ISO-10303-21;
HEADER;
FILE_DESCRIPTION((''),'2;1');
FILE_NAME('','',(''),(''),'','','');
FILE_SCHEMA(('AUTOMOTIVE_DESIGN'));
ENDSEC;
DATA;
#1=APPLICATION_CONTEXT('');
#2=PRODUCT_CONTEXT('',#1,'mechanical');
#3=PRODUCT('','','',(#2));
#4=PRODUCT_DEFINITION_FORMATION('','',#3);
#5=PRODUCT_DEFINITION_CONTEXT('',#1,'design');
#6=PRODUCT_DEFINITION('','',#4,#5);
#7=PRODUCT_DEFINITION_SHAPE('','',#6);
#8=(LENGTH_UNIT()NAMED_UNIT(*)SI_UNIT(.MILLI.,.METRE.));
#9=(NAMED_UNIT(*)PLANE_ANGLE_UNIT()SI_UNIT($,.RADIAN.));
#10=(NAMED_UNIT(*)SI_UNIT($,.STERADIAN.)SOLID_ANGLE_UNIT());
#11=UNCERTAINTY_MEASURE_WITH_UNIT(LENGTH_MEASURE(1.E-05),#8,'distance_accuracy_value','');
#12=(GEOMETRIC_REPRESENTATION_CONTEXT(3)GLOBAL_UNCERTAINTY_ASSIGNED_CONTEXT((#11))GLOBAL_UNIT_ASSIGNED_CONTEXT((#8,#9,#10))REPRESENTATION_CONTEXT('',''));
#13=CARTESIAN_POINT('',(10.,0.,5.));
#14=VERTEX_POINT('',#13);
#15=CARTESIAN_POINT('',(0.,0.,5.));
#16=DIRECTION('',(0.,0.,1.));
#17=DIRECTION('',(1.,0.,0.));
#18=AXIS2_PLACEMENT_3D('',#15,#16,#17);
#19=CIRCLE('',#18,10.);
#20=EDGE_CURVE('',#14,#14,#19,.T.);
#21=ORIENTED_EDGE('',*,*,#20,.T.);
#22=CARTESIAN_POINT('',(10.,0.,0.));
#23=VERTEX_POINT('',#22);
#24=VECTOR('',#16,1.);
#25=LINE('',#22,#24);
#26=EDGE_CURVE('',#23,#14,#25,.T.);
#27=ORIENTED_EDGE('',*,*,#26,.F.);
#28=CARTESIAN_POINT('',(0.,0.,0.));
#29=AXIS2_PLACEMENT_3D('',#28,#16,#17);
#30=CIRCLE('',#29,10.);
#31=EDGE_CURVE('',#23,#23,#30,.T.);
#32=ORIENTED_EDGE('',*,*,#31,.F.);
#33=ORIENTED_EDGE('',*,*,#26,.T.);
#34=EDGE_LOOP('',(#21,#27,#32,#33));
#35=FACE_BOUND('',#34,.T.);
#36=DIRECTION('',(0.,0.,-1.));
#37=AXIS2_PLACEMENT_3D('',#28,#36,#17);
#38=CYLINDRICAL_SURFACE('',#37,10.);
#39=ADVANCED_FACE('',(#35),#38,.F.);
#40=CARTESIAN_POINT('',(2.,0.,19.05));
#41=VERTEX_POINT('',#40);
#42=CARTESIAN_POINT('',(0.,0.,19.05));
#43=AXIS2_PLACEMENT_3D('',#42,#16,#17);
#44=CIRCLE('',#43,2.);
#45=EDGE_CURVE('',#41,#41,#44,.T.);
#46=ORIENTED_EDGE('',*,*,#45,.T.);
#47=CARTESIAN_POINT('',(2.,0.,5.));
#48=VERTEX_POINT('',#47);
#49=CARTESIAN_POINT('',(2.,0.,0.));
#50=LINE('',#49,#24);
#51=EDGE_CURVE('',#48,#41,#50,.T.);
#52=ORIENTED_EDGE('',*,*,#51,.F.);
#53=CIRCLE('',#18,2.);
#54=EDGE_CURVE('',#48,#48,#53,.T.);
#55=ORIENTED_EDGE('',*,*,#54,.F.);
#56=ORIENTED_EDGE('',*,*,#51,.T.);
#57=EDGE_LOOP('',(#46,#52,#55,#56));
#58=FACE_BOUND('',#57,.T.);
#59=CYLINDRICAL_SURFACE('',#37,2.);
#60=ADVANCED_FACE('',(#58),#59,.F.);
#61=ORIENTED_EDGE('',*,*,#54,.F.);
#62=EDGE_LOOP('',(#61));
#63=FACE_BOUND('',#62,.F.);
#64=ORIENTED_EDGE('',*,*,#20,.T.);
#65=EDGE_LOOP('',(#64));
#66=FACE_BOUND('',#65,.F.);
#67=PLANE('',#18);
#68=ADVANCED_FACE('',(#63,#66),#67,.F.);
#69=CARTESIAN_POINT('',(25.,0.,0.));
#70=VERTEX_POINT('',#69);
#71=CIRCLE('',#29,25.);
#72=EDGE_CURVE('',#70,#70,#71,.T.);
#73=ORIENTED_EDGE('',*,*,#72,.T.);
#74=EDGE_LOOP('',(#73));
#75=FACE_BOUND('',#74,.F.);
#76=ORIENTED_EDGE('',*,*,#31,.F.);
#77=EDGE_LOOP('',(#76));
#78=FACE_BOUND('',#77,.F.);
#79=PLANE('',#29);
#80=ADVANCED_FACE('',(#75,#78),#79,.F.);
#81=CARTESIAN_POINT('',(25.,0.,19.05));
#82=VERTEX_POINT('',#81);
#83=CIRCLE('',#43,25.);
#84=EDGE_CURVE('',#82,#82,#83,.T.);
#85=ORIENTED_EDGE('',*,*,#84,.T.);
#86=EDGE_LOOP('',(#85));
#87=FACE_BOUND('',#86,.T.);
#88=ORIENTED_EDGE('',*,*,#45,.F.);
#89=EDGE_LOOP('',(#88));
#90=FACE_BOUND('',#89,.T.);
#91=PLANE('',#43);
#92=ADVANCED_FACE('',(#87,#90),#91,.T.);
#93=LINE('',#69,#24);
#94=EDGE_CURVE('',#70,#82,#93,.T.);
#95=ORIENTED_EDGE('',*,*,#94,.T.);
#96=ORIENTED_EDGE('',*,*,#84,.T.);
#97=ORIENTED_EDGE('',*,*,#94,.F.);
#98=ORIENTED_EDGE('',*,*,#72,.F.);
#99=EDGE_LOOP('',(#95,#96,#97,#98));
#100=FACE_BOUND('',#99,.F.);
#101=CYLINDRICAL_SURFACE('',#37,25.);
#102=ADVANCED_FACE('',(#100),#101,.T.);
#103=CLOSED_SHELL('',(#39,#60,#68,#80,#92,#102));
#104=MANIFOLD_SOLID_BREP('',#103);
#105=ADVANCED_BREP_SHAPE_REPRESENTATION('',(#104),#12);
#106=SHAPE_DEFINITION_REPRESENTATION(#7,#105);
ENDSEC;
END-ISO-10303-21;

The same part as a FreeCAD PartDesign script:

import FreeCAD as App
import Part
import Sketcher
from FreeCAD import Vector

doc = App.newDocument("Part")
body = doc.addObject("PartDesign::Body", "Body")

# Sketch on XY plane
sketch1 = doc.addObject("Sketcher::SketchObject", "Sketch")
body.addObject(sketch1)
sketch1.AttachmentSupport = (doc.XY_Plane, [""])
sketch1.MapMode = "FlatFace"
sketch1.addGeometry(Part.Circle(Vector(0, 0, 0), Vector(0, 0, 1), 25), False)
sketch1.addGeometry(Part.Circle(Vector(0, 0, 0), Vector(0, 0, 1), 2), False)
sketch1.addConstraint(Sketcher.Constraint("Coincident", 0, 3, -1, 1))
sketch1.addConstraint(Sketcher.Constraint("Coincident", 1, 3, -1, 1))
sketch1.addConstraint(Sketcher.Constraint("Diameter", 0, 50.0))
sketch1.addConstraint(Sketcher.Constraint("Diameter", 1, 4.0))
pad1 = doc.addObject("PartDesign::Pad", "Pad")
body.addObject(pad1)
pad1.Profile = sketch1
pad1.Length = 19.05

# Sketch on XY plane
sketch2 = doc.addObject("Sketcher::SketchObject", "Sketch001")
body.addObject(sketch2)
sketch2.AttachmentSupport = (doc.XY_Plane, [""])
sketch2.MapMode = "FlatFace"
sketch2.addGeometry(Part.Circle(Vector(0, 0, 0), Vector(0, 0, 1), 10), False)
sketch2.addGeometry(Part.Circle(Vector(0, 0, 0), Vector(0, 0, 1), 2), False)
sketch2.addConstraint(Sketcher.Constraint("Coincident", 0, 3, -1, 1))
sketch2.addConstraint(Sketcher.Constraint("Coincident", 1, 3, -1, 1))
sketch2.addConstraint(Sketcher.Constraint("Diameter", 0, 20.0))
sketch2.addConstraint(Sketcher.Constraint("Diameter", 1, 4.0))
pocket1 = doc.addObject("PartDesign::Pocket", "Pocket")
body.addObject(pocket1)
pocket1.Profile = sketch2
pocket1.Length = 5
pocket1.Reversed = True

doc.recompute()
